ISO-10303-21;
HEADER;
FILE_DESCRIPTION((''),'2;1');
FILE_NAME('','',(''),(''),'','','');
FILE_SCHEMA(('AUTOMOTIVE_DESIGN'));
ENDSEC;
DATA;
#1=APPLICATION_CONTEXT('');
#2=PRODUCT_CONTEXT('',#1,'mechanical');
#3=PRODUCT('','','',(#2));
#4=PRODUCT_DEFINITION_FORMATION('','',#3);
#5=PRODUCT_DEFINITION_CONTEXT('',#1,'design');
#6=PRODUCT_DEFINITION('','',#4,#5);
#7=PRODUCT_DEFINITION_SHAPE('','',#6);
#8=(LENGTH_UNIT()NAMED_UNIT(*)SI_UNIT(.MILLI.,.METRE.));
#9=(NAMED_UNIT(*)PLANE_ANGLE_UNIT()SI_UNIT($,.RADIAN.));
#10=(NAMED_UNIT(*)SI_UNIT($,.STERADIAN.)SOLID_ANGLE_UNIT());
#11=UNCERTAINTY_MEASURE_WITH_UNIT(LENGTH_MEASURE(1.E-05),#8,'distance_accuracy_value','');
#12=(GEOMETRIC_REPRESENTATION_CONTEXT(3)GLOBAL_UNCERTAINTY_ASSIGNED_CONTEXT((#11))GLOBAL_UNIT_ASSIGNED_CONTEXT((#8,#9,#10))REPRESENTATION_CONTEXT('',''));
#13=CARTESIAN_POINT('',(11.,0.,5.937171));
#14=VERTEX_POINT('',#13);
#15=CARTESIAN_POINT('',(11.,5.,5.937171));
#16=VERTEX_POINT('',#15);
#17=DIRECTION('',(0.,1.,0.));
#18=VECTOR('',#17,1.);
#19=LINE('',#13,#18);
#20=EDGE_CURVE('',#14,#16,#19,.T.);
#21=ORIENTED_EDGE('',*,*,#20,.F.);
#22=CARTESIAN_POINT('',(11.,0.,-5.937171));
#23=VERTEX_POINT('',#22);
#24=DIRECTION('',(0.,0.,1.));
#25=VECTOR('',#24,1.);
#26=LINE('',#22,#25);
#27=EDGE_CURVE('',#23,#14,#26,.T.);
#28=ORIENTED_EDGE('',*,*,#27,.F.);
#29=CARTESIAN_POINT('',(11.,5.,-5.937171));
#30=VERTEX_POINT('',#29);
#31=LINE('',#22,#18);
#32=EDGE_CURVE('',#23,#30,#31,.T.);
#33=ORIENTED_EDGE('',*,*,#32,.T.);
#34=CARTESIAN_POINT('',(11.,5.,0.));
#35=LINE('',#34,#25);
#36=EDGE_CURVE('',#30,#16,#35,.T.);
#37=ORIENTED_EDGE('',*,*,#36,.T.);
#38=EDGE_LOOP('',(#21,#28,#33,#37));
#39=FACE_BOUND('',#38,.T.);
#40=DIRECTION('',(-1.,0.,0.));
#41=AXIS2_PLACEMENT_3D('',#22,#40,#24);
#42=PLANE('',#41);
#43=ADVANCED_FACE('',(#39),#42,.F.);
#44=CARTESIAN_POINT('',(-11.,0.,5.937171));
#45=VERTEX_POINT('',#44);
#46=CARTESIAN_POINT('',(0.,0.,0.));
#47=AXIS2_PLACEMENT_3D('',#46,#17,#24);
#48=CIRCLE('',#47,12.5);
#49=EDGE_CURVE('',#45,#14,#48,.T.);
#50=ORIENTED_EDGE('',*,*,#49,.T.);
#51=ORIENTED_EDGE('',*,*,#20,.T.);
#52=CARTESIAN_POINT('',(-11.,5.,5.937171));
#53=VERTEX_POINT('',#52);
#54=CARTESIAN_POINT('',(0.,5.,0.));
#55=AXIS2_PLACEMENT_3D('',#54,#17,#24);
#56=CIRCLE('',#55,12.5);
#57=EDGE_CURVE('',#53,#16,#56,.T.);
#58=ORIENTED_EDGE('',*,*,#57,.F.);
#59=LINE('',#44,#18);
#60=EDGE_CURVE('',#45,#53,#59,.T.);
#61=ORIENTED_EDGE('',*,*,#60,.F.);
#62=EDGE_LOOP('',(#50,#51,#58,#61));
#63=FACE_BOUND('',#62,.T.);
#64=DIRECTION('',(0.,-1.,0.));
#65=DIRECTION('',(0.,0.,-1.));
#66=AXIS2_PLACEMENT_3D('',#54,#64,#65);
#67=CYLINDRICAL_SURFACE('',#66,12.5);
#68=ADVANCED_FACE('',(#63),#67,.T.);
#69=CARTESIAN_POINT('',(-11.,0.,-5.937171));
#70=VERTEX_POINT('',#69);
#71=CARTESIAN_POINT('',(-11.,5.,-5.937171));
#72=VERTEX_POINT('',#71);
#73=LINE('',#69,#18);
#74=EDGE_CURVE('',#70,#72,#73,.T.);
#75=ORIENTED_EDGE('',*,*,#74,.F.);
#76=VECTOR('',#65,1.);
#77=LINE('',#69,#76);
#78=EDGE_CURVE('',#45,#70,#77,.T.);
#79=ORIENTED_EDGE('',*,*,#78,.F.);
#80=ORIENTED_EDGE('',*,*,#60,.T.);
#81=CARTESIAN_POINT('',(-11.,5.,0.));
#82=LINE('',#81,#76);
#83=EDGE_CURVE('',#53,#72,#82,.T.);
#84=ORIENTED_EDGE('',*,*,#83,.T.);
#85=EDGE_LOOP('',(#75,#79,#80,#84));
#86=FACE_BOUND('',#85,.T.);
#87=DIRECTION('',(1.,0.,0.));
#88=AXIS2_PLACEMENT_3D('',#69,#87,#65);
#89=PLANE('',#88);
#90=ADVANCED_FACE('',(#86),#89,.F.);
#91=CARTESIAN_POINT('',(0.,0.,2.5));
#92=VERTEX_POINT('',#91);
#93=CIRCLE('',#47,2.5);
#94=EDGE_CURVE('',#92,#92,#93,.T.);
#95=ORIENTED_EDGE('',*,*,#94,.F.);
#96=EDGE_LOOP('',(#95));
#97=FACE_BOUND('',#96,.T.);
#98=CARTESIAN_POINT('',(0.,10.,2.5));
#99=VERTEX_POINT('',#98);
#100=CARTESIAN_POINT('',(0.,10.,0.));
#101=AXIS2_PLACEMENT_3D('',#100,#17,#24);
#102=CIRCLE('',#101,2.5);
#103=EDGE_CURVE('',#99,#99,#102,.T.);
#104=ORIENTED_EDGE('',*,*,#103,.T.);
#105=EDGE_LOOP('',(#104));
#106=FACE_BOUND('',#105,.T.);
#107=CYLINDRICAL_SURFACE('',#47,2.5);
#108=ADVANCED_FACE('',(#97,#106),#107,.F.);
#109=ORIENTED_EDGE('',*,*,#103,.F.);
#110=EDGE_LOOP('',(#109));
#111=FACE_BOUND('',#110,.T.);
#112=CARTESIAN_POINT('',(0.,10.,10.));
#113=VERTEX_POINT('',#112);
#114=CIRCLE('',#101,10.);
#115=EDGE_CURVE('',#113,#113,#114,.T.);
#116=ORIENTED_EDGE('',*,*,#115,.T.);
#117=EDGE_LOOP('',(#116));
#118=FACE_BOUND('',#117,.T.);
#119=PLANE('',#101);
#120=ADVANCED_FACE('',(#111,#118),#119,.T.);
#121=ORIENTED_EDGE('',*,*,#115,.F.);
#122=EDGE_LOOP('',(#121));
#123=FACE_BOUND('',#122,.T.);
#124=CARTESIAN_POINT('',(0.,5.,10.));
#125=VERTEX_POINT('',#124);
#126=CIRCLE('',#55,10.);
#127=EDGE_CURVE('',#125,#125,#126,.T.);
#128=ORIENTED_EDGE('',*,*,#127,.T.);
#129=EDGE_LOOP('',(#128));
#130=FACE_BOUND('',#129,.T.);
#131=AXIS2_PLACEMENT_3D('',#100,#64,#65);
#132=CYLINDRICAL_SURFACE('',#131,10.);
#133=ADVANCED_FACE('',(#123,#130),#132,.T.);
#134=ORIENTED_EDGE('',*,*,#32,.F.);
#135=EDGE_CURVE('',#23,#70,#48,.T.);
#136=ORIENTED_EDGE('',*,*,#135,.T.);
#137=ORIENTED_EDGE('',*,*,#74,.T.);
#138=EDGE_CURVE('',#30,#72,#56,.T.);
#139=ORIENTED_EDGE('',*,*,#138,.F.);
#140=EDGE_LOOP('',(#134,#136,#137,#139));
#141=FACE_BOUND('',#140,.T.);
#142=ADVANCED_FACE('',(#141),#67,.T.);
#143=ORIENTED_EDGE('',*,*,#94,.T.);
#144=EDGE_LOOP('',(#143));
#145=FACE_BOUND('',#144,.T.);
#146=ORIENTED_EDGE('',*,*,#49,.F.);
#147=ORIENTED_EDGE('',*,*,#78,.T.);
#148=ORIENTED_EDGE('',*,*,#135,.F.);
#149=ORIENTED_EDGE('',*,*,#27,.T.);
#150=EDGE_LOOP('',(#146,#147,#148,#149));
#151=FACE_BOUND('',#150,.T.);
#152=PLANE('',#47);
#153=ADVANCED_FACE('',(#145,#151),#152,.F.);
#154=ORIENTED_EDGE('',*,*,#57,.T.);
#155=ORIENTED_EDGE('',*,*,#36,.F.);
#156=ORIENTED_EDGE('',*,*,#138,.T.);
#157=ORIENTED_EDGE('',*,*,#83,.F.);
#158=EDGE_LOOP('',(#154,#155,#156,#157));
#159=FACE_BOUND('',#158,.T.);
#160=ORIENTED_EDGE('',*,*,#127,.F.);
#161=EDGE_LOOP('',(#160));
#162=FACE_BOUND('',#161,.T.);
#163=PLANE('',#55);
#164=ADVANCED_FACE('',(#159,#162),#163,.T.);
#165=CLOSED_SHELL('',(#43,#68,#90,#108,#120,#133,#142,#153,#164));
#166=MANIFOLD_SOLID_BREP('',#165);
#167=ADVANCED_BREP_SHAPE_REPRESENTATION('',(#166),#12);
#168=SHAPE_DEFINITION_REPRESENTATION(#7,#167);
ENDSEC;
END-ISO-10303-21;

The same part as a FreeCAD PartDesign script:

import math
import FreeCAD as App
import Part
import Sketcher

V = App.Vector

doc = App.newDocument("Part")
body = doc.addObject("PartDesign::Body", "Body")

sketch1 = doc.addObject("Sketcher::SketchObject", "Sketch")
body.addObject(sketch1)
sketch1.AttachmentSupport = (doc.XZ_Plane, [""])
sketch1.MapMode = "FlatFace"
sketch1.addGeometry(Part.Circle(V(0, 0, 0), V(0, 0, 1), 12), False)
sketch1.addConstraint([
    Sketcher.Constraint("Coincident", 0, 3, -1, 1),
    Sketcher.Constraint("Diameter", 0, 25.0),
])
pad1 = doc.addObject("PartDesign::Pad", "Pad")
body.addObject(pad1)
pad1.Profile = sketch1
pad1.Length = 5
pad1.Reversed = True

sketch2 = doc.addObject("Sketcher::SketchObject", "Sketch001")
body.addObject(sketch2)
sketch2.AttachmentSupport = (doc.XZ_Plane, [""])
sketch2.MapMode = "FlatFace"
sketch2.AttachmentOffset = App.Placement(V(0, 0, -5), App.Rotation())
sketch2.addGeometry(Part.Circle(V(0, 0, 0), V(0, 0, 1), 10), False)
sketch2.addConstraint([
    Sketcher.Constraint("Coincident", 0, 3, -1, 1),
    Sketcher.Constraint("Diameter", 0, 20.0),
])
pad2 = doc.addObject("PartDesign::Pad", "Pad001")
body.addObject(pad2)
pad2.Profile = sketch2
pad2.Length = 5
pad2.Reversed = True

sketch3 = doc.addObject("Sketcher::SketchObject", "Sketch002")
body.addObject(sketch3)
sketch3.AttachmentSupport = (doc.XZ_Plane, [""])
sketch3.MapMode = "FlatFace"
sketch3.AttachmentOffset = App.Placement(V(0, 0, -10), App.Rotation())
sketch3.addGeometry([
    Part.Circle(V(0, 0, 0), V(0, 0, 1), 2.5),
    Part.LineSegment(V(-11, 5.9, 0), V(-11, -5.9, 0)),
    Part.ArcOfCircle(Part.Circle(V(0, 0, 0), V(0, 0, 1), 12.5), math.radians(152), math.radians(208)),
    Part.LineSegment(V(11, -5.9, 0), V(11, 5.9, 0)),
    Part.ArcOfCircle(Part.Circle(V(0, 0, 0), V(0, 0, 1), 12.5), math.radians(-28), math.radians(28)),
], False)
sketch3.addConstraint([
    Sketcher.Constraint("Coincident", 1, 1, 2, 1),
    Sketcher.Constraint("Coincident", 2, 2, 1, 2),
    Sketcher.Constraint("Coincident", 3, 1, 4, 1),
    Sketcher.Constraint("Coincident", 4, 2, 3, 2),
    Sketcher.Constraint("Vertical", 1),
    Sketcher.Constraint("Vertical", 3),
    Sketcher.Constraint("Coincident", 0, 3, -1, 1),
    Sketcher.Constraint("Coincident", 2, 3, -1, 1),
    Sketcher.Constraint("Coincident", 4, 3, -1, 1),
    Sketcher.Constraint("Equal", 2, 4),
    Sketcher.Constraint("Horizontal", 2, 2, 3, 1),
    Sketcher.Constraint("Diameter", 0, 5.0),
    Sketcher.Constraint("Radius", 2, 12.5),
    Sketcher.Constraint("DistanceX", 1, 1, -1, 1, 11.0),
])
pocket1 = doc.addObject("PartDesign::Pocket", "Pocket")
body.addObject(pocket1)
pocket1.Profile = sketch3
pocket1.Type = "ThroughAll"
pocket1.Reversed = True

doc.recompute()
